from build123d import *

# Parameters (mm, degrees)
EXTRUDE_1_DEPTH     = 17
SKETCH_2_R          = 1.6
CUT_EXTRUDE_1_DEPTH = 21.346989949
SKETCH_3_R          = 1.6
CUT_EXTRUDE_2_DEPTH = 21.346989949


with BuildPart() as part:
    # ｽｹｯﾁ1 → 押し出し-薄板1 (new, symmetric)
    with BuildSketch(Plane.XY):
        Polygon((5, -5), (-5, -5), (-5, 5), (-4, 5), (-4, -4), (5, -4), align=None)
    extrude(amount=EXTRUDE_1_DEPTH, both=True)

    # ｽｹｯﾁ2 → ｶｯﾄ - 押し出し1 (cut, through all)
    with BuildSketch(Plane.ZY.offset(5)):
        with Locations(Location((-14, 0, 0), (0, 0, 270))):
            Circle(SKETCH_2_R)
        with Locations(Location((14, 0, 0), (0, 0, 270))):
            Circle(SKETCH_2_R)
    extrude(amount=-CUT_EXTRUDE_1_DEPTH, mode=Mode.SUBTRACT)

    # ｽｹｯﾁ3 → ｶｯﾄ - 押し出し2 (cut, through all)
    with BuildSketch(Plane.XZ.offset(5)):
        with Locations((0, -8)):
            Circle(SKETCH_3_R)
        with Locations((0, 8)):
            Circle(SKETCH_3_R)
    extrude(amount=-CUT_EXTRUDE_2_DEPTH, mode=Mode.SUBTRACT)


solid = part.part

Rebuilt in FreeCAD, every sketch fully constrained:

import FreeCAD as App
import Part
import Sketcher
from FreeCAD import Vector

doc = App.newDocument("Part")
body = doc.addObject("PartDesign::Body", "Body")

# Sketch on XY plane
sketch1 = body.newObject("Sketcher::SketchObject", "Sketch")
sketch1.AttachmentSupport = (doc.getObject("XY_Plane"), [""])
sketch1.MapMode = "FlatFace"
sketch1.addGeometry(Part.LineSegment(Vector(-5, -5, 0), Vector(5, -5, 0)), False)
sketch1.addGeometry(Part.LineSegment(Vector(5, -5, 0), Vector(5, -4, 0)), False)
sketch1.addGeometry(Part.LineSegment(Vector(5, -4, 0), Vector(-4, -4, 0)), False)
sketch1.addGeometry(Part.LineSegment(Vector(-4, -4, 0), Vector(-4, 5, 0)), False)
sketch1.addGeometry(Part.LineSegment(Vector(-4, 5, 0), Vector(-5, 5, 0)), False)
sketch1.addGeometry(Part.LineSegment(Vector(-5, 5, 0), Vector(-5, -5, 0)), False)
sketch1.addConstraint(Sketcher.Constraint("Coincident", 0, 2, 1, 1))
sketch1.addConstraint(Sketcher.Constraint("Coincident", 1, 2, 2, 1))
sketch1.addConstraint(Sketcher.Constraint("Coincident", 2, 2, 3, 1))
sketch1.addConstraint(Sketcher.Constraint("Coincident", 3, 2, 4, 1))
sketch1.addConstraint(Sketcher.Constraint("Coincident", 4, 2, 5, 1))
sketch1.addConstraint(Sketcher.Constraint("Coincident", 5, 2, 0, 1))
sketch1.addConstraint(Sketcher.Constraint("Horizontal", 0))
sketch1.addConstraint(Sketcher.Constraint("Vertical", 1))
sketch1.addConstraint(Sketcher.Constraint("Horizontal", 2))
sketch1.addConstraint(Sketcher.Constraint("Vertical", 3))
sketch1.addConstraint(Sketcher.Constraint("Horizontal", 4))
sketch1.addConstraint(Sketcher.Constraint("Vertical", 5))
sketch1.addConstraint(Sketcher.Constraint("Symmetric", 0, 2, 4, 2, -1, 1))
sketch1.addConstraint(Sketcher.Constraint("Equal", 4, 1))
sketch1.addConstraint(Sketcher.Constraint("Equal", 2, 3))
sketch1.addConstraint(Sketcher.Constraint("DistanceX", 0, 1, 0, 2, 10.0))
sketch1.addConstraint(Sketcher.Constraint("DistanceX", 2, 2, 2, 1, 9.0))
pad1 = body.newObject("PartDesign::Pad", "Pad")
pad1.Profile = sketch1
pad1.Length = 34
pad1.Midplane = True

# Sketch on YZ plane
sketch2 = body.newObject("Sketcher::SketchObject", "Sketch001")
sketch2.AttachmentSupport = (doc.getObject("YZ_Plane"), [""])
sketch2.MapMode = "FlatFace"
sketch2.AttachmentOffset = App.Placement(Vector(0, 0, -5), App.Rotation())
sketch2.addGeometry(Part.Circle(Vector(0, -14, 0), Vector(0, 0, 1), 1.6), False)
sketch2.addGeometry(Part.Circle(Vector(0, 14, 0), Vector(0, 0, 1), 1.6), False)
sketch2.addConstraint(Sketcher.Constraint("Equal", 0, 1))
sketch2.addConstraint(Sketcher.Constraint("Symmetric", 0, 3, 1, 3, -1, 1))
sketch2.addConstraint(Sketcher.Constraint("PointOnObject", 0, 3, -2))
sketch2.addConstraint(Sketcher.Constraint("Diameter", 0, 3.2))
sketch2.addConstraint(Sketcher.Constraint("DistanceY", 0, 3, -1, 1, 14.0))
pocket1 = body.newObject("PartDesign::Pocket", "Pocket")
pocket1.Profile = sketch2
pocket1.Type = "ThroughAll"
pocket1.Reversed = True

# Sketch on XZ plane
sketch3 = body.newObject("Sketcher::SketchObject", "Sketch002")
sketch3.AttachmentSupport = (doc.getObject("XZ_Plane"), [""])
sketch3.MapMode = "FlatFace"
sketch3.AttachmentOffset = App.Placement(Vector(0, 0, 5), App.Rotation())
sketch3.addGeometry(Part.Circle(Vector(0, -8, 0), Vector(0, 0, 1), 1.6), False)
sketch3.addGeometry(Part.Circle(Vector(0, 8, 0), Vector(0, 0, 1), 1.6), False)
sketch3.addConstraint(Sketcher.Constraint("Equal", 0, 1))
sketch3.addConstraint(Sketcher.Constraint("Symmetric", 0, 3, 1, 3, -1, 1))
sketch3.addConstraint(Sketcher.Constraint("PointOnObject", 0, 3, -2))
sketch3.addConstraint(Sketcher.Constraint("Diameter", 0, 3.2))
sketch3.addConstraint(Sketcher.Constraint("DistanceY", 0, 3, -1, 1, 8.0))
pocket2 = body.newObject("PartDesign::Pocket", "Pocket001")
pocket2.Profile = sketch3
pocket2.Type = "ThroughAll"

doc.recompute()
